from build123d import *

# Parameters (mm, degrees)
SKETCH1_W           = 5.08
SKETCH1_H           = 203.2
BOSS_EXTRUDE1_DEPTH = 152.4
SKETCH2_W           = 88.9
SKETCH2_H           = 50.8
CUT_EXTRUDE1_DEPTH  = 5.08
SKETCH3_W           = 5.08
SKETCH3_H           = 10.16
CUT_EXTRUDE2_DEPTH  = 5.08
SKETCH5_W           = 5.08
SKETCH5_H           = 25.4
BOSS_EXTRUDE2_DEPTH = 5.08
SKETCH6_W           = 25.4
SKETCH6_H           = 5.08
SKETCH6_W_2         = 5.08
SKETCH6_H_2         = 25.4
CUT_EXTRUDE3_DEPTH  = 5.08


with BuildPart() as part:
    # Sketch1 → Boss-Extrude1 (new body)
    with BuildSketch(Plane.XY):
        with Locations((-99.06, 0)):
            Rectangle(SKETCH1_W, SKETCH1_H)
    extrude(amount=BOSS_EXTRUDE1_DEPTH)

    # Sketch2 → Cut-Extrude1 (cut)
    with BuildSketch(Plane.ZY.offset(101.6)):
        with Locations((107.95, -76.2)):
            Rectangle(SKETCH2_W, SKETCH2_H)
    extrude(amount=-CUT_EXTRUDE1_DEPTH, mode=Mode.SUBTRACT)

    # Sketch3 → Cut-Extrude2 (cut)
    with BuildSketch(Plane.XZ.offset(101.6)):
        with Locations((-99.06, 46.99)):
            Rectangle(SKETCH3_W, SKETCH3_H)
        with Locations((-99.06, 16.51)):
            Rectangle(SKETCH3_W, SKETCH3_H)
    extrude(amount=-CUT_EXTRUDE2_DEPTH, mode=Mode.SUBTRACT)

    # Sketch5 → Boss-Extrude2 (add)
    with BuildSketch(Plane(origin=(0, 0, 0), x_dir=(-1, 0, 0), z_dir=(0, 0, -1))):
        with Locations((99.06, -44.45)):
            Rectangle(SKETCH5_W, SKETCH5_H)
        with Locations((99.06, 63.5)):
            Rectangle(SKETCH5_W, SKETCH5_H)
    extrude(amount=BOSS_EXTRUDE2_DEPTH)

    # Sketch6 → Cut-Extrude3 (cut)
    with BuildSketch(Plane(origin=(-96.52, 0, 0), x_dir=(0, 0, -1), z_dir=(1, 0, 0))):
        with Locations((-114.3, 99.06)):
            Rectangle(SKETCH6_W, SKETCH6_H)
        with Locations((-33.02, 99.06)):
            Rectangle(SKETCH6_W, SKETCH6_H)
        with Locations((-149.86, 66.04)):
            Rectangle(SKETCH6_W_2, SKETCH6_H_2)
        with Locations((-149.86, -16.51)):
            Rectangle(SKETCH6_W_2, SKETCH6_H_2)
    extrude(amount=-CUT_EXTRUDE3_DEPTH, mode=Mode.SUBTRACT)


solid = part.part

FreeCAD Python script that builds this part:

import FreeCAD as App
import Part
import Sketcher
from FreeCAD import Vector
Q = App.Units.Quantity


def add_polygon(sketch, points):
    """Adds a closed chain of lines whose ends are joined by coincident constraints."""
    first, n = sketch.GeometryCount, len(points)
    for a, b in zip(points, points[1:] + points[:1]):
        sketch.addGeometry(Part.LineSegment(App.Vector(*a, 0), App.Vector(*b, 0)), False)
    for i in range(n):
        sketch.addConstraint(Sketcher.Constraint("Coincident", first + i, 2, first + (i + 1) % n, 1))

doc = App.newDocument("Part")
body = doc.addObject("PartDesign::Body", "Body")

sketch1 = body.newObject("Sketcher::SketchObject", "Sketch")
sketch1.AttachmentSupport = (doc.getObject("XY_Plane"), [""])
sketch1.MapMode = "FlatFace"
add_polygon(sketch1, [(-102, 102), (-102, -102), (-97, -102), (-97, 102)])
sketch1.addConstraint([
    Sketcher.Constraint("Vertical", 0),
    Sketcher.Constraint("Horizontal", 1),
    Sketcher.Constraint("Vertical", 2),
    Sketcher.Constraint("Horizontal", 3),
    Sketcher.Constraint("DistanceY", 0, 2, 0, 1, Q("8 in")),
    Sketcher.Constraint("DistanceX", 1, 1, 1, 2, Q("0.2 in")),
    Sketcher.Constraint("DistanceX", 0, 2, -1, 1, Q("4 in")),
    Sketcher.Constraint("DistanceY", 0, 2, -1, 1, Q("4 in")),
])
pad1 = body.newObject("PartDesign::Pad", "Pad")
pad1.Profile = sketch1
pad1.Length = Q("6 in")

sketch2 = body.newObject("Sketcher::SketchObject", "Sketch001")
sketch2.AttachmentSupport = (doc.getObject("YZ_Plane"), [""])
sketch2.MapMode = "FlatFace"
sketch2.AttachmentOffset = App.Placement(Vector(0, 0, -4 * 25.4), App.Rotation())
add_polygon(sketch2, [(-51, 64), (-102, 64), (-102, 152), (-51, 152)])
sketch2.addConstraint([
    Sketcher.Constraint("Horizontal", 0),
    Sketcher.Constraint("Vertical", 1),
    Sketcher.Constraint("Horizontal", 2),
    Sketcher.Constraint("Vertical", 3),
    Sketcher.Constraint("DistanceX", 0, 2, 0, 1, Q("2 in")),
    Sketcher.Constraint("DistanceY", 1, 1, 1, 2, Q("3.5 in")),
    Sketcher.Constraint("DistanceX", 0, 2, -1, 1, Q("4 in")),
    Sketcher.Constraint("DistanceY", -1, 1, 1, 2, Q("6 in")),
])
pocket1 = body.newObject("PartDesign::Pocket", "Pocket")
pocket1.Profile = sketch2
pocket1.Length = Q("0.2 in")
pocket1.Reversed = True

sketch3 = body.newObject("Sketcher::SketchObject", "Sketch002")
sketch3.AttachmentSupport = (doc.getObject("XZ_Plane"), [""])
sketch3.MapMode = "FlatFace"
sketch3.AttachmentOffset = App.Placement(Vector(0, 0, 4 * 25.4), App.Rotation())
add_polygon(sketch3, [(-102, 52), (-102, 42), (-97, 42), (-97, 52)])
add_polygon(sketch3, [(-102, 22), (-102, 11), (-97, 11), (-97, 22)])
sketch3.addConstraint([
    Sketcher.Constraint("Vertical", 0),
    Sketcher.Constraint("Horizontal", 1),
    Sketcher.Constraint("Vertical", 2),
    Sketcher.Constraint("Horizontal", 3),
    Sketcher.Constraint("Vertical", 4),
    Sketcher.Constraint("Horizontal", 5),
    Sketcher.Constraint("Vertical", 6),
    Sketcher.Constraint("Horizontal", 7),
    Sketcher.Constraint("Vertical", 3, 2, 4, 2),
    Sketcher.Constraint("Vertical", 2, 2, 5, 2),
    Sketcher.Constraint("Equal", 2, 4),
    Sketcher.Constraint("DistanceX", 1, 1, 1, 2, Q("0.2 in")),
    Sketcher.Constraint("DistanceY", 0, 2, 0, 1, Q("0.4 in")),
    Sketcher.Constraint("DistanceX", 0, 2, -1, 1, Q("4 in")),
    Sketcher.Constraint("DistanceY", 4, 2, 0, 2, Q("1.2 in")),
    Sketcher.Constraint("DistanceY", -1, 1, 0, 2, Q("1.65 in")),
])
pocket2 = body.newObject("PartDesign::Pocket", "Pocket001")
pocket2.Profile = sketch3
pocket2.Length = Q("0.2 in")

sketch4 = body.newObject("Sketcher::SketchObject", "Sketch003")
sketch4.AttachmentSupport = (doc.getObject("XY_Plane"), [""])
sketch4.MapMode = "FlatFace"
add_polygon(sketch4, [(-97, -32), (-97, -57), (-102, -57), (-102, -32)])
add_polygon(sketch4, [(-97, 76), (-97, 51), (-102, 51), (-102, 76)])
sketch4.addConstraint([
    Sketcher.Constraint("Vertical", 0),
    Sketcher.Constraint("Horizontal", 1),
    Sketcher.Constraint("Vertical", 2),
    Sketcher.Constraint("Horizontal", 3),
    Sketcher.Constraint("Vertical", 4),
    Sketcher.Constraint("Horizontal", 5),
    Sketcher.Constraint("Vertical", 6),
    Sketcher.Constraint("Horizontal", 7),
    Sketcher.Constraint("Vertical", 3, 2, 4, 2),
    Sketcher.Constraint("Vertical", 2, 2, 5, 2),
    Sketcher.Constraint("Equal", 2, 4),
    Sketcher.Constraint("DistanceY", 0, 2, 0, 1, Q("1 in")),
    Sketcher.Constraint("DistanceX", 1, 2, 1, 1, Q("0.2 in")),
    Sketcher.Constraint("DistanceX", 1, 2, -1, 1, Q("4 in")),
    Sketcher.Constraint("DistanceY", -1, 1, 4, 2, Q("2 in")),
    Sketcher.Constraint("DistanceY", 0, 2, -1, 1, Q("2.25 in")),
])
pad2 = body.newObject("PartDesign::Pad", "Pad001")
pad2.Profile = sketch4
pad2.Length = Q("0.2 in")
pad2.Reversed = True

sketch5 = body.newObject("Sketcher::SketchObject", "Sketch004")
sketch5.AttachmentSupport = (doc.getObject("YZ_Plane"), [""])
sketch5.MapMode = "FlatFace"
sketch5.AttachmentOffset = App.Placement(Vector(0, 0, -3.8 * 25.4), App.Rotation())
add_polygon(sketch5, [(102, 127), (97, 127), (97, 102), (102, 102)])
add_polygon(sketch5, [(102, 46), (97, 46), (97, 20), (102, 20)])
add_polygon(sketch5, [(79, 152), (53, 152), (53, 147), (79, 147)])
add_polygon(sketch5, [(-4, 152), (-29, 152), (-29, 147), (-4, 147)])
sketch5.addConstraint([
    Sketcher.Constraint("Horizontal", 0),
    Sketcher.Constraint("Vertical", 1),
    Sketcher.Constraint("Horizontal", 2),
    Sketcher.Constraint("Vertical", 3),
    Sketcher.Constraint("Horizontal", 4),
    Sketcher.Constraint("Vertical", 5),
    Sketcher.Constraint("Horizontal", 6),
    Sketcher.Constraint("Vertical", 7),
    Sketcher.Constraint("Horizontal", 8),
    Sketcher.Constraint("Vertical", 9),
    Sketcher.Constraint("Horizontal", 10),
    Sketcher.Constraint("Vertical", 11),
    Sketcher.Constraint("Horizontal", 12),
    Sketcher.Constraint("Vertical", 13),
    Sketcher.Constraint("Horizontal", 14),
    Sketcher.Constraint("Vertical", 15),
    Sketcher.Constraint("Horizontal", 11, 2, 12, 2),
    Sketcher.Constraint("Horizontal", 10, 2, 13, 2),
    Sketcher.Constraint("Vertical", 1, 2, 4, 2),
    Sketcher.Constraint("Vertical", 3, 2, 6, 2),
    Sketcher.Constraint("Equal", 10, 12),
    Sketcher.Constraint("Equal", 14, 1),
    Sketcher.Constraint("Equal", 3, 5),
    Sketcher.Constraint("Equal", 6, 9),
    Sketcher.Constraint("DistanceX", 8, 2, 8, 1, Q("1 in")),
    Sketcher.Constraint("DistanceX", 0, 2, 0, 1, Q("0.2 in")),
    Sketcher.Constraint("DistanceY", -1, 1, 0, 2, Q("5 in")),
    Sketcher.Constraint("DistanceX", -1, 1, 2, 2, Q("4 in")),
    Sketcher.Constraint("DistanceY", -1, 1, 8, 2, Q("6 in")),
    Sketcher.Constraint("DistanceY", -1, 1, 4, 2, Q("1.8 in")),
    Sketcher.Constraint("DistanceX", -1, 1, 8, 2, Q("2.1 in")),
    Sketcher.Constraint("DistanceX", 12, 2, -1, 1, Q("1.15 in")),
])
pocket3 = body.newObject("PartDesign::Pocket", "Pocket002")
pocket3.Profile = sketch5
pocket3.Length = Q("0.2 in")

doc.recompute()
